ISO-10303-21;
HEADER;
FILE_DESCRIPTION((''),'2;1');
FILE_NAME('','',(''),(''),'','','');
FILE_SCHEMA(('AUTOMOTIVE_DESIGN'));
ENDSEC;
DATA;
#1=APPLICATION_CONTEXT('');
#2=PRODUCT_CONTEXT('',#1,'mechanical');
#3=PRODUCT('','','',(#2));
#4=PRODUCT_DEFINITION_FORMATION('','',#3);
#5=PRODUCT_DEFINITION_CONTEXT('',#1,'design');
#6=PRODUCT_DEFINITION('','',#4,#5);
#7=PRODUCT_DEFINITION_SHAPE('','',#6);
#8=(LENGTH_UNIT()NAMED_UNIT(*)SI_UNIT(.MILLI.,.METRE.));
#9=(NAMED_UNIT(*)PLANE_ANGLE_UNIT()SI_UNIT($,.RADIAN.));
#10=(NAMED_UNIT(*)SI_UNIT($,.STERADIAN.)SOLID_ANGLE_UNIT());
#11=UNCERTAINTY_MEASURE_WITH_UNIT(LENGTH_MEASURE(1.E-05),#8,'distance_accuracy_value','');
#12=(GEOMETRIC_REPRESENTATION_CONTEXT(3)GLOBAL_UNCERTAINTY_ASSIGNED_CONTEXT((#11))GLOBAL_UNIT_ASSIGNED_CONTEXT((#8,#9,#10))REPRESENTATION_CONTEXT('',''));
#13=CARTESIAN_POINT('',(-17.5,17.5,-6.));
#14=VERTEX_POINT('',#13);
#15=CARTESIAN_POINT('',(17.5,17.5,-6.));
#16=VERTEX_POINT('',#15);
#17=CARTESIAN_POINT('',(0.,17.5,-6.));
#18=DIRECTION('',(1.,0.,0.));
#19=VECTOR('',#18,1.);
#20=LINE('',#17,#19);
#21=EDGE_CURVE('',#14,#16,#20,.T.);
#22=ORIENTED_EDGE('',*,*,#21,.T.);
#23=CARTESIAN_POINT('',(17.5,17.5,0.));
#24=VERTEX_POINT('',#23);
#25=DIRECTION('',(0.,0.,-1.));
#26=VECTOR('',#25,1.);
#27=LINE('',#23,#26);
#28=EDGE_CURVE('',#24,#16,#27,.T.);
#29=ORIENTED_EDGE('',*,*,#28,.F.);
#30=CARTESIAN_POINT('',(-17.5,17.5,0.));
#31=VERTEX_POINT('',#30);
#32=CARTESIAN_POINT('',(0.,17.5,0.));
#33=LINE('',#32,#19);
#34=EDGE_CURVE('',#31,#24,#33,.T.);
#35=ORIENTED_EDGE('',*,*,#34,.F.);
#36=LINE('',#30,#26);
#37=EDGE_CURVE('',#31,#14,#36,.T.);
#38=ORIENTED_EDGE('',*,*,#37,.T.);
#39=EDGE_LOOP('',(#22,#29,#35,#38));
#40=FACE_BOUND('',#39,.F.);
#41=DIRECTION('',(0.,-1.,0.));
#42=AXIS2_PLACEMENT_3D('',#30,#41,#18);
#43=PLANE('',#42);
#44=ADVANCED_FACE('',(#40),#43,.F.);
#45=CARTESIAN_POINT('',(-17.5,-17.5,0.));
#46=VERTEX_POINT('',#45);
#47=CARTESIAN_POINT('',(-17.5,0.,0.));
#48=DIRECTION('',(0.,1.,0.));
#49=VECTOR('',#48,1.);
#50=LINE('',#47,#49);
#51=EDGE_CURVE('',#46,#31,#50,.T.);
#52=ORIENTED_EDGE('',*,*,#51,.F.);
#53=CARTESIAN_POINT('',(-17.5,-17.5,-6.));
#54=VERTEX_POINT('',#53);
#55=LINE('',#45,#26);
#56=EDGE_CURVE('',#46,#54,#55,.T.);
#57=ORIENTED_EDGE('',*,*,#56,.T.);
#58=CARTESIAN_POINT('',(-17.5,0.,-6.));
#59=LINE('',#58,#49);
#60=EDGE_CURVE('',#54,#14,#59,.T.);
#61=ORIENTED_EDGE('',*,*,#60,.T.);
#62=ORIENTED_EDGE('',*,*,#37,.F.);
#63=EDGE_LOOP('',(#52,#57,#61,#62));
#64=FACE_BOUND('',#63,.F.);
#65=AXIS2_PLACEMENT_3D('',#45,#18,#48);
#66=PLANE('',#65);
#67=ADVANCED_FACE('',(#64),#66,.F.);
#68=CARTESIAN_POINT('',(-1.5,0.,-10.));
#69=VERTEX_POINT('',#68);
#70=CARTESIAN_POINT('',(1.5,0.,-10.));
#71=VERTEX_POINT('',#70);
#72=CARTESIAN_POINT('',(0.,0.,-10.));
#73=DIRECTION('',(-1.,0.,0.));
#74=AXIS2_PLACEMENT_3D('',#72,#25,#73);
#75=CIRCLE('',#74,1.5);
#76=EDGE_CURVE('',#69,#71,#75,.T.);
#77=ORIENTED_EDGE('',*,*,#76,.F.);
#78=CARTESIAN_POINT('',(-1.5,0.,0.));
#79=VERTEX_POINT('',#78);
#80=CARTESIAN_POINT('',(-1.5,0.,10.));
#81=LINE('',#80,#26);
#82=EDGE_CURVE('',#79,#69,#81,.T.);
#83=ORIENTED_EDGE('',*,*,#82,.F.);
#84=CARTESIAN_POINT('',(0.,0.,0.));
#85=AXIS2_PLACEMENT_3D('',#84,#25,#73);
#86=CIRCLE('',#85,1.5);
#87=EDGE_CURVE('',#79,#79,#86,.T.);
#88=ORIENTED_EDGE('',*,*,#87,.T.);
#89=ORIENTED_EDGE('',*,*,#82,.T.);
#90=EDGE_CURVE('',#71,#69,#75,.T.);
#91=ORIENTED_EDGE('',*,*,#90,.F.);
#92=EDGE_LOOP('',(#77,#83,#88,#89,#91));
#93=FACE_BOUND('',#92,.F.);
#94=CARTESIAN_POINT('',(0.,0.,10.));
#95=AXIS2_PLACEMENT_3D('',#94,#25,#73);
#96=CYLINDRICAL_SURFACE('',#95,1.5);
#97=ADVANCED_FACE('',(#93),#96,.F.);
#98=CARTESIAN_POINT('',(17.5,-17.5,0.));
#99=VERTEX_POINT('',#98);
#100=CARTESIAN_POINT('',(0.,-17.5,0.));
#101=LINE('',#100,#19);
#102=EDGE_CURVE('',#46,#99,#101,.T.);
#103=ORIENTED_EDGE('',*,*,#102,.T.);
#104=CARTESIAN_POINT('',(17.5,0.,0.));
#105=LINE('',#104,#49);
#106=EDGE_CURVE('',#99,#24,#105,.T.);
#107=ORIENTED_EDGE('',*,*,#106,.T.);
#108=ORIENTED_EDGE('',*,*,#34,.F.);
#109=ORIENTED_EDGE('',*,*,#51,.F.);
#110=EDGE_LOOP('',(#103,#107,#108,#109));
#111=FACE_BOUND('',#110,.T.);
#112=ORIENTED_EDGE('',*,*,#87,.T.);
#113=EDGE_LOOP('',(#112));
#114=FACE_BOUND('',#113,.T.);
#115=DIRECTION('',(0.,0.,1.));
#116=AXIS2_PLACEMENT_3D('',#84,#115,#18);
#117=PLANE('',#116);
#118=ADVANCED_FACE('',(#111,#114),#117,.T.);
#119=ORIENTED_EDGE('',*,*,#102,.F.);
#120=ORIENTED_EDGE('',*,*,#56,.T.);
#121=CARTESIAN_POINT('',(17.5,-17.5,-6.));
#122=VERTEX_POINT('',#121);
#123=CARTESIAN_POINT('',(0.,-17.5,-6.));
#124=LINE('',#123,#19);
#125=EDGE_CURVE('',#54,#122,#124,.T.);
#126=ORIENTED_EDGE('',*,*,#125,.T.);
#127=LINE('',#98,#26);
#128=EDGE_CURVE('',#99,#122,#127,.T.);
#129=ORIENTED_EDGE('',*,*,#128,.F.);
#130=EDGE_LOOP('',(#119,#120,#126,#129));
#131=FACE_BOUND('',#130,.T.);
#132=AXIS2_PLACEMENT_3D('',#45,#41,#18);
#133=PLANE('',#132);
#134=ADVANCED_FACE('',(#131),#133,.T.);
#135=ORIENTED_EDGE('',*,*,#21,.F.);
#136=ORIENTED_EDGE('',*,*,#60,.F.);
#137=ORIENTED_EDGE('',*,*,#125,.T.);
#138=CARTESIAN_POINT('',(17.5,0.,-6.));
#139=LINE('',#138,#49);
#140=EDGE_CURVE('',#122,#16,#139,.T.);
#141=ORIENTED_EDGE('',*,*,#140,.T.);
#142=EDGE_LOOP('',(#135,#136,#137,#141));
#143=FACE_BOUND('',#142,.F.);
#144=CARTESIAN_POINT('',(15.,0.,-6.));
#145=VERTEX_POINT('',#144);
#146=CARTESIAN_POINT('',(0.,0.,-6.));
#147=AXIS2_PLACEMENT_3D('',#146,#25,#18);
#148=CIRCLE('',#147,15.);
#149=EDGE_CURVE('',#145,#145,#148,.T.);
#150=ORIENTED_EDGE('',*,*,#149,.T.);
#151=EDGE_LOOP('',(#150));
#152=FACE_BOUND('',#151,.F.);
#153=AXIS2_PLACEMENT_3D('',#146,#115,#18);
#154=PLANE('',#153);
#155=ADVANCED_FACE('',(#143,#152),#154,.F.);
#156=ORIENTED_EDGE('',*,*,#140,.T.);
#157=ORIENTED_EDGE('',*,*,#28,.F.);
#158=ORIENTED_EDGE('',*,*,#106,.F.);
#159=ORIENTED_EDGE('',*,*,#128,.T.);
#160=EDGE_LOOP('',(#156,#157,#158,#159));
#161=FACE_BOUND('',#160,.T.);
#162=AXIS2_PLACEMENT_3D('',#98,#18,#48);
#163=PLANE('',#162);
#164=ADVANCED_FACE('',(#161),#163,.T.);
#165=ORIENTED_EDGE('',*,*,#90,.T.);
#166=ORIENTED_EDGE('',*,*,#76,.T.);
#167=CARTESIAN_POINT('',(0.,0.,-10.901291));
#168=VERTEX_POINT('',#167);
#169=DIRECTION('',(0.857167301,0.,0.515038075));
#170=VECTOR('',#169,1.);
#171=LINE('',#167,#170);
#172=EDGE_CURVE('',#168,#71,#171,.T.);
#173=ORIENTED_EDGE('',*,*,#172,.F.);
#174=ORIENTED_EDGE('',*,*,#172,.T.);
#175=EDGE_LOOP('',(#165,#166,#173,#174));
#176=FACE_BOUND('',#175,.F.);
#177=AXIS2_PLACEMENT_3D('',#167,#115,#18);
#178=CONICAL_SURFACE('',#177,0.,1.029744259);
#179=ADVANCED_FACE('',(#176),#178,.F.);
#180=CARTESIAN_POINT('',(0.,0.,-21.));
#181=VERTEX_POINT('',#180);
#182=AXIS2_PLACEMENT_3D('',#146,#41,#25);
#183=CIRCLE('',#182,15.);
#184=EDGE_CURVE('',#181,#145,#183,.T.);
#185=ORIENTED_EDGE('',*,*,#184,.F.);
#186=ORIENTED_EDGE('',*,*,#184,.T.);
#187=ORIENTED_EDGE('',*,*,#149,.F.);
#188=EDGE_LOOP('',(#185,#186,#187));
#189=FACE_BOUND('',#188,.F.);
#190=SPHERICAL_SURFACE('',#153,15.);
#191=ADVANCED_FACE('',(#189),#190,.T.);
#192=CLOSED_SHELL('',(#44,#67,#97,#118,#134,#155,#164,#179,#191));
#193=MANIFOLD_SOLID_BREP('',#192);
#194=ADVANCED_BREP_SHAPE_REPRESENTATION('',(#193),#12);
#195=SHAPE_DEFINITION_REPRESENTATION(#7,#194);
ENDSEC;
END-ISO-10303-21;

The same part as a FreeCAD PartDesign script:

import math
import FreeCAD as App
import Part
import Sketcher
from FreeCAD import Vector

doc = App.newDocument("Part")
body = doc.addObject("PartDesign::Body", "Body")

# Sketch on XY plane
sketch1 = body.newObject("Sketcher::SketchObject", "Sketch")
sketch1.AttachmentSupport = (doc.getObject("XY_Plane"), [""])
sketch1.MapMode = "FlatFace"
sketch1.addGeometry(Part.LineSegment(Vector(-17.5, 17.5, 0), Vector(-17.5, -17.5, 0)), False)
sketch1.addGeometry(Part.LineSegment(Vector(-17.5, -17.5, 0), Vector(17.5, -17.5, 0)), False)
sketch1.addGeometry(Part.LineSegment(Vector(17.5, -17.5, 0), Vector(17.5, 17.5, 0)), False)
sketch1.addGeometry(Part.LineSegment(Vector(17.5, 17.5, 0), Vector(-17.5, 17.5, 0)), False)
sketch1.addConstraint(Sketcher.Constraint("Coincident", 0, 2, 1, 1))
sketch1.addConstraint(Sketcher.Constraint("Coincident", 1, 2, 2, 1))
sketch1.addConstraint(Sketcher.Constraint("Coincident", 2, 2, 3, 1))
sketch1.addConstraint(Sketcher.Constraint("Coincident", 3, 2, 0, 1))
sketch1.addConstraint(Sketcher.Constraint("Vertical", 0))
sketch1.addConstraint(Sketcher.Constraint("Horizontal", 1))
sketch1.addConstraint(Sketcher.Constraint("Vertical", 2))
sketch1.addConstraint(Sketcher.Constraint("Horizontal", 3))
sketch1.addConstraint(Sketcher.Constraint("Symmetric", 0, 2, 2, 2, -1, 1))
sketch1.addConstraint(Sketcher.Constraint("Equal", 3, 0))
sketch1.addConstraint(Sketcher.Constraint("DistanceX", 1, 1, 1, 2, 35.0))
pad1 = body.newObject("PartDesign::Pad", "Pad")
pad1.Profile = sketch1
pad1.Length = 6
pad1.Reversed = True

# Sketch on XZ plane
sketch2 = body.newObject("Sketcher::SketchObject", "Sketch001")
sketch2.AttachmentSupport = (doc.getObject("XZ_Plane"), [""])
sketch2.MapMode = "FlatFace"
sketch2.addGeometry(Part.LineSegment(Vector(0, -6, 0), Vector(0, -21, 0)), False)
sketch2.addGeometry(Part.ArcOfCircle(Part.Circle(Vector(0, -6, 0), Vector(0, 0, 1), 15), math.radians(-90), math.radians(0)), False)
sketch2.addGeometry(Part.LineSegment(Vector(15, -6, 0), Vector(0, -6, 0)), False)
sketch2.addConstraint(Sketcher.Constraint("Coincident", 0, 2, 1, 1))
sketch2.addConstraint(Sketcher.Constraint("Coincident", 1, 2, 2, 1))
sketch2.addConstraint(Sketcher.Constraint("Coincident", 2, 2, 0, 1))
sketch2.addConstraint(Sketcher.Constraint("Vertical", 0))
sketch2.addConstraint(Sketcher.Constraint("Horizontal", 2))
sketch2.addConstraint(Sketcher.Constraint("Coincident", 2, 2, 1, 3))
sketch2.addConstraint(Sketcher.Constraint("PointOnObject", 1, 3, -2))
sketch2.addConstraint(Sketcher.Constraint("Radius", 1, 15.0))
sketch2.addConstraint(Sketcher.Constraint("DistanceY", 1, 3, -1, 1, 6.0))
revolution = body.newObject("PartDesign::Revolution", "Revolution")
revolution.Profile = sketch2
revolution.ReferenceAxis = (sketch2, ["V_Axis"])
revolution.Angle = 360

# Sketch on XY plane
sketch3 = body.newObject("Sketcher::SketchObject", "Sketch002")
sketch3.AttachmentSupport = (doc.getObject("XY_Plane"), [""])
sketch3.MapMode = "FlatFace"
sketch3.addGeometry(Part.Circle(Vector(0, 0, 0), Vector(0, 0, 1), 1.5), False)
sketch3.addConstraint(Sketcher.Constraint("Coincident", 0, 3, -1, 1))
sketch3.addConstraint(Sketcher.Constraint("Diameter", 0, 3.0))
doc.recompute()
hole = body.newObject("PartDesign::Hole", "Hole")
hole.Profile = sketch3
hole.ThreadType = "None"
hole.Diameter = 3
hole.DepthType = "Dimension"
hole.Depth = 10
hole.DrillPoint = "Angled"
hole.DrillPointAngle = 118

doc.recompute()
